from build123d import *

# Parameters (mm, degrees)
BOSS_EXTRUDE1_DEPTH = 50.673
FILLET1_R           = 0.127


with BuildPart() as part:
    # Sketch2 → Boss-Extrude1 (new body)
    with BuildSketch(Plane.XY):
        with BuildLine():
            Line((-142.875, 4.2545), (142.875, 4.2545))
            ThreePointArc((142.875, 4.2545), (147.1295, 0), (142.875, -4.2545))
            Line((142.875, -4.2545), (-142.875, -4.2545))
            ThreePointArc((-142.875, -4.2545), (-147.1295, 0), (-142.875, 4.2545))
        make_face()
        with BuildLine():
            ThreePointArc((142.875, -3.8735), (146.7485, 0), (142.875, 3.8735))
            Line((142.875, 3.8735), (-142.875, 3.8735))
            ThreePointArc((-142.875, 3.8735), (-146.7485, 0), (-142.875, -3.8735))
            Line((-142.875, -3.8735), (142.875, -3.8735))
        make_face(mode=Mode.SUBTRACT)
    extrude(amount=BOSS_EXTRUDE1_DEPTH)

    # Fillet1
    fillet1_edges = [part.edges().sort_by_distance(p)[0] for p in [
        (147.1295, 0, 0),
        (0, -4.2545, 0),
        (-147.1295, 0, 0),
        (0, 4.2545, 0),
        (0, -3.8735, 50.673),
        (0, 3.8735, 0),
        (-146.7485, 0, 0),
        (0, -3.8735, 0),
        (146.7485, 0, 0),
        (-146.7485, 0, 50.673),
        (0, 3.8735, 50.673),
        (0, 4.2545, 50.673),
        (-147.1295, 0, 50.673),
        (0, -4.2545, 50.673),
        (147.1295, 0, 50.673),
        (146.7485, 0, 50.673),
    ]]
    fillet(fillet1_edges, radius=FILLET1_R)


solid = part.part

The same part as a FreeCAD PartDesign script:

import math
import FreeCAD as App
import Part
import Sketcher

V = App.Vector
Q = App.Units.Quantity


def edges_at(feature, points):
    """Names of the edges that pass closest to the given points."""
    edges = feature.Shape.Edges
    near = lambda p: min(range(len(edges)), key=lambda i: edges[i].distToShape(Part.Vertex(*p))[0])
    return sorted({f"Edge{near(p) + 1}" for p in points})

doc = App.newDocument("Part")
params = doc.addObject("Spreadsheet::Sheet", "Params")
for row, (alias, value) in enumerate([
    ("sketch1_width", "11.25 in"),
    ("pad1_length", "1.995 in"),
    ("fillet_radius", "0.005 in"),
], start=1):
    params.set(f"A{row}", alias)
    params.set(f"B{row}", "=" + value)
    params.setAlias(f"B{row}", alias)

body = doc.addObject("PartDesign::Body", "Body")

# Sketch on XY plane
sketch1 = body.newObject("Sketcher::SketchObject", "Sketch")
sketch1.AttachmentSupport = (doc.getObject("XY_Plane"), [""])
sketch1.MapMode = "FlatFace"
sketch1.addGeometry([
    Part.LineSegment(V(142.9, 4.3, 0), V(-142.9, 4.3, 0)),  # 0
    Part.ArcOfCircle(Part.Circle(V(-142.9, 0, 0), V(0, 0, 1), 4.3), math.radians(90), math.radians(270)),  # 1
    Part.LineSegment(V(-142.9, -4.3, 0), V(142.9, -4.3, 0)),  # 2
    Part.ArcOfCircle(Part.Circle(V(142.9, 0, 0), V(0, 0, 1), 4.3), math.radians(-90), math.radians(90)),  # 3
    Part.LineSegment(V(142.9, -3.9, 0), V(-142.9, -3.9, 0)),  # 4
    Part.ArcOfCircle(Part.Circle(V(-142.9, 0, 0), V(0, 0, 1), 3.9), math.radians(90), math.radians(270)),  # 5
    Part.LineSegment(V(-142.9, 3.9, 0), V(142.9, 3.9, 0)),  # 6
    Part.ArcOfCircle(Part.Circle(V(142.9, 0, 0), V(0, 0, 1), 3.9), math.radians(-90), math.radians(90)),  # 7
], False)
sketch1.addConstraint([
    Sketcher.Constraint("Tangent", 0, 2, 1, 1),
    Sketcher.Constraint("Tangent", 1, 2, 2, 1),
    Sketcher.Constraint("Tangent", 2, 2, 3, 1),
    Sketcher.Constraint("Tangent", 3, 2, 0, 1),
    Sketcher.Constraint("Tangent", 4, 2, 5, 2),
    Sketcher.Constraint("Tangent", 5, 1, 6, 1),
    Sketcher.Constraint("Tangent", 6, 2, 7, 2),
    Sketcher.Constraint("Tangent", 7, 1, 4, 1),
    Sketcher.Constraint("Horizontal", 0),
    Sketcher.Constraint("Horizontal", 2),
    Sketcher.Constraint("Horizontal", 4),
    Sketcher.Constraint("Horizontal", 6),
    Sketcher.Constraint("Coincident", 5, 3, 1, 3),
    Sketcher.Constraint("Symmetric", 1, 3, 3, 3, -1, 1),
    Sketcher.Constraint("Vertical", 7, 3, 2, 2),
    Sketcher.Constraint("DistanceX", 0, 2, 0, 1, Q("11.25 in")),
    Sketcher.Constraint("Radius", 1, Q("0.1675 in")),
    Sketcher.Constraint("Radius", 5, Q("0.1525 in")),
])
sketch1.setExpression("Constraints[15]", "Params.sketch1_width")
pad1 = body.newObject("PartDesign::Pad", "Pad")
pad1.Profile = sketch1
pad1.setExpression("Length", "Params.pad1_length")
doc.recompute()

fillet = body.newObject("PartDesign::Fillet", "Fillet")
fillet.Base = (pad1, edges_at(pad1, [
    (147.13, 0, 0),
    (0, -4.255, 0),
    (-147.13, 0, 0),
    (0, 4.255, 0),
    (0, -3.873, 50.673),
    (0, 3.873, 0),
    (-146.749, 0, 0),
    (0, -3.873, 0),
    (146.749, 0, 0),
    (-146.749, 0, 50.673),
    (0, 3.873, 50.673),
    (0, 4.255, 50.673),
    (-147.13, 0, 50.673),
    (0, -4.255, 50.673),
    (147.13, 0, 50.673),
    (146.749, 0, 50.673),
]))
fillet.setExpression("Radius", "Params.fillet_radius")

doc.recompute()
